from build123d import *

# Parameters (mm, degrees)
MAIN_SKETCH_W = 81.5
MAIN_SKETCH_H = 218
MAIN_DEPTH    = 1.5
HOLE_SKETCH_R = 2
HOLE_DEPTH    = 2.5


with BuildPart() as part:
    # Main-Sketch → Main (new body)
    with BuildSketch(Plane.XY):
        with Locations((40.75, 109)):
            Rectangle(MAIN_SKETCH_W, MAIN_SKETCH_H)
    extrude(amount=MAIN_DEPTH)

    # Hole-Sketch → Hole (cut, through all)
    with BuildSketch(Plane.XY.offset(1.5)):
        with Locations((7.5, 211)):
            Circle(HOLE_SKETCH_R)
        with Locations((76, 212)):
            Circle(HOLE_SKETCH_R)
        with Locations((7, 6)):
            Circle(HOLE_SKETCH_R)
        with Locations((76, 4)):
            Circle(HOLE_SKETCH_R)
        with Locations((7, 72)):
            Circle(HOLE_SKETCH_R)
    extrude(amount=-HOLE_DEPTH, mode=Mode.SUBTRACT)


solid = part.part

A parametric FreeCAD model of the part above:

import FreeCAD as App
import Part
import Sketcher

V = App.Vector

doc = App.newDocument("Part")
params = doc.addObject("Spreadsheet::Sheet", "Params")
for row, (alias, value) in enumerate([
    ("sketch1_height", "218 mm"),
    ("sketch1_width", "81.5 mm"),
    ("pad1_length", "1.5 mm"),
    ("sketch2_diameter", "4 mm"),
], start=1):
    params.set(f"A{row}", alias)
    params.set(f"B{row}", "=" + value)
    params.setAlias(f"B{row}", alias)

body = doc.addObject("PartDesign::Body", "Body")

sketch1 = body.newObject("Sketcher::SketchObject", "Sketch")
sketch1.AttachmentSupport = (doc.getObject("XY_Plane"), [""])
sketch1.MapMode = "FlatFace"
sketch1.addGeometry(Part.LineSegment(V(0, 218, 0), V(0, 0, 0)), False)
sketch1.addGeometry(Part.LineSegment(V(0, 0, 0), V(81.5, 0, 0)), False)
sketch1.addGeometry(Part.LineSegment(V(81.5, 0, 0), V(81.5, 218, 0)), False)
sketch1.addGeometry(Part.LineSegment(V(81.5, 218, 0), V(0, 218, 0)), False)
sketch1.addConstraint(Sketcher.Constraint("Coincident", 0, 2, 1, 1))
sketch1.addConstraint(Sketcher.Constraint("Coincident", 1, 2, 2, 1))
sketch1.addConstraint(Sketcher.Constraint("Coincident", 2, 2, 3, 1))
sketch1.addConstraint(Sketcher.Constraint("Coincident", 3, 2, 0, 1))
sketch1.addConstraint(Sketcher.Constraint("Vertical", 0))
sketch1.addConstraint(Sketcher.Constraint("Horizontal", 1))
sketch1.addConstraint(Sketcher.Constraint("Vertical", 2))
sketch1.addConstraint(Sketcher.Constraint("Horizontal", 3))
sketch1.addConstraint(Sketcher.Constraint("Coincident", 0, 2, -1, 1))
sketch1.addConstraint(Sketcher.Constraint("DistanceY", 0, 2, 0, 1, 218.0))
sketch1.addConstraint(Sketcher.Constraint("DistanceX", 1, 1, 1, 2, 81.5))
sketch1.setExpression("Constraints[9]", "Params.sketch1_height")
sketch1.setExpression("Constraints[10]", "Params.sketch1_width")
pad1 = body.newObject("PartDesign::Pad", "Pad")
pad1.Profile = sketch1
pad1.setExpression("Length", "Params.pad1_length")

sketch2 = body.newObject("Sketcher::SketchObject", "Sketch001")
sketch2.AttachmentSupport = (doc.getObject("XY_Plane"), [""])
sketch2.MapMode = "FlatFace"
sketch2.AttachmentOffset = App.Placement(V(0, 0, 1.5), App.Rotation())
sketch2.addGeometry(Part.Circle(V(7.5, 211, 0), V(0, 0, 1), 2), False)
sketch2.addGeometry(Part.Circle(V(76, 212, 0), V(0, 0, 1), 2), False)
sketch2.addGeometry(Part.Circle(V(7, 6, 0), V(0, 0, 1), 2), False)
sketch2.addGeometry(Part.Circle(V(76, 4, 0), V(0, 0, 1), 2), False)
sketch2.addGeometry(Part.Circle(V(7, 72, 0), V(0, 0, 1), 2), False)
sketch2.addConstraint(Sketcher.Constraint("Equal", 0, 1))
sketch2.addConstraint(Sketcher.Constraint("Equal", 1, 2))
sketch2.addConstraint(Sketcher.Constraint("Equal", 2, 3))
sketch2.addConstraint(Sketcher.Constraint("Equal", 3, 4))
sketch2.addConstraint(Sketcher.Constraint("Vertical", 1, 3, 3, 3))
sketch2.addConstraint(Sketcher.Constraint("Vertical", 2, 3, 4, 3))
sketch2.addConstraint(Sketcher.Constraint("Diameter", 0, 4.0))
sketch2.addConstraint(Sketcher.Constraint("DistanceY", -1, 1, 0, 3, 211.0))
sketch2.addConstraint(Sketcher.Constraint("DistanceX", -1, 1, 1, 3, 76.0))
sketch2.addConstraint(Sketcher.Constraint("DistanceY", -1, 1, 1, 3, 212.0))
sketch2.addConstraint(Sketcher.Constraint("DistanceX", -1, 1, 2, 3, 7.0))
sketch2.addConstraint(Sketcher.Constraint("DistanceY", -1, 1, 2, 3, 6.0))
sketch2.addConstraint(Sketcher.Constraint("DistanceY", -1, 1, 3, 3, 4.0))
sketch2.addConstraint(Sketcher.Constraint("DistanceY", -1, 1, 4, 3, 72.0))
sketch2.addConstraint(Sketcher.Constraint("DistanceX", -1, 1, 0, 3, 7.5))
sketch2.setExpression("Constraints[6]", "Params.sketch2_diameter")
pocket1 = body.newObject("PartDesign::Pocket", "Pocket")
pocket1.Profile = sketch2
pocket1.Type = "ThroughAll"

doc.recompute()
